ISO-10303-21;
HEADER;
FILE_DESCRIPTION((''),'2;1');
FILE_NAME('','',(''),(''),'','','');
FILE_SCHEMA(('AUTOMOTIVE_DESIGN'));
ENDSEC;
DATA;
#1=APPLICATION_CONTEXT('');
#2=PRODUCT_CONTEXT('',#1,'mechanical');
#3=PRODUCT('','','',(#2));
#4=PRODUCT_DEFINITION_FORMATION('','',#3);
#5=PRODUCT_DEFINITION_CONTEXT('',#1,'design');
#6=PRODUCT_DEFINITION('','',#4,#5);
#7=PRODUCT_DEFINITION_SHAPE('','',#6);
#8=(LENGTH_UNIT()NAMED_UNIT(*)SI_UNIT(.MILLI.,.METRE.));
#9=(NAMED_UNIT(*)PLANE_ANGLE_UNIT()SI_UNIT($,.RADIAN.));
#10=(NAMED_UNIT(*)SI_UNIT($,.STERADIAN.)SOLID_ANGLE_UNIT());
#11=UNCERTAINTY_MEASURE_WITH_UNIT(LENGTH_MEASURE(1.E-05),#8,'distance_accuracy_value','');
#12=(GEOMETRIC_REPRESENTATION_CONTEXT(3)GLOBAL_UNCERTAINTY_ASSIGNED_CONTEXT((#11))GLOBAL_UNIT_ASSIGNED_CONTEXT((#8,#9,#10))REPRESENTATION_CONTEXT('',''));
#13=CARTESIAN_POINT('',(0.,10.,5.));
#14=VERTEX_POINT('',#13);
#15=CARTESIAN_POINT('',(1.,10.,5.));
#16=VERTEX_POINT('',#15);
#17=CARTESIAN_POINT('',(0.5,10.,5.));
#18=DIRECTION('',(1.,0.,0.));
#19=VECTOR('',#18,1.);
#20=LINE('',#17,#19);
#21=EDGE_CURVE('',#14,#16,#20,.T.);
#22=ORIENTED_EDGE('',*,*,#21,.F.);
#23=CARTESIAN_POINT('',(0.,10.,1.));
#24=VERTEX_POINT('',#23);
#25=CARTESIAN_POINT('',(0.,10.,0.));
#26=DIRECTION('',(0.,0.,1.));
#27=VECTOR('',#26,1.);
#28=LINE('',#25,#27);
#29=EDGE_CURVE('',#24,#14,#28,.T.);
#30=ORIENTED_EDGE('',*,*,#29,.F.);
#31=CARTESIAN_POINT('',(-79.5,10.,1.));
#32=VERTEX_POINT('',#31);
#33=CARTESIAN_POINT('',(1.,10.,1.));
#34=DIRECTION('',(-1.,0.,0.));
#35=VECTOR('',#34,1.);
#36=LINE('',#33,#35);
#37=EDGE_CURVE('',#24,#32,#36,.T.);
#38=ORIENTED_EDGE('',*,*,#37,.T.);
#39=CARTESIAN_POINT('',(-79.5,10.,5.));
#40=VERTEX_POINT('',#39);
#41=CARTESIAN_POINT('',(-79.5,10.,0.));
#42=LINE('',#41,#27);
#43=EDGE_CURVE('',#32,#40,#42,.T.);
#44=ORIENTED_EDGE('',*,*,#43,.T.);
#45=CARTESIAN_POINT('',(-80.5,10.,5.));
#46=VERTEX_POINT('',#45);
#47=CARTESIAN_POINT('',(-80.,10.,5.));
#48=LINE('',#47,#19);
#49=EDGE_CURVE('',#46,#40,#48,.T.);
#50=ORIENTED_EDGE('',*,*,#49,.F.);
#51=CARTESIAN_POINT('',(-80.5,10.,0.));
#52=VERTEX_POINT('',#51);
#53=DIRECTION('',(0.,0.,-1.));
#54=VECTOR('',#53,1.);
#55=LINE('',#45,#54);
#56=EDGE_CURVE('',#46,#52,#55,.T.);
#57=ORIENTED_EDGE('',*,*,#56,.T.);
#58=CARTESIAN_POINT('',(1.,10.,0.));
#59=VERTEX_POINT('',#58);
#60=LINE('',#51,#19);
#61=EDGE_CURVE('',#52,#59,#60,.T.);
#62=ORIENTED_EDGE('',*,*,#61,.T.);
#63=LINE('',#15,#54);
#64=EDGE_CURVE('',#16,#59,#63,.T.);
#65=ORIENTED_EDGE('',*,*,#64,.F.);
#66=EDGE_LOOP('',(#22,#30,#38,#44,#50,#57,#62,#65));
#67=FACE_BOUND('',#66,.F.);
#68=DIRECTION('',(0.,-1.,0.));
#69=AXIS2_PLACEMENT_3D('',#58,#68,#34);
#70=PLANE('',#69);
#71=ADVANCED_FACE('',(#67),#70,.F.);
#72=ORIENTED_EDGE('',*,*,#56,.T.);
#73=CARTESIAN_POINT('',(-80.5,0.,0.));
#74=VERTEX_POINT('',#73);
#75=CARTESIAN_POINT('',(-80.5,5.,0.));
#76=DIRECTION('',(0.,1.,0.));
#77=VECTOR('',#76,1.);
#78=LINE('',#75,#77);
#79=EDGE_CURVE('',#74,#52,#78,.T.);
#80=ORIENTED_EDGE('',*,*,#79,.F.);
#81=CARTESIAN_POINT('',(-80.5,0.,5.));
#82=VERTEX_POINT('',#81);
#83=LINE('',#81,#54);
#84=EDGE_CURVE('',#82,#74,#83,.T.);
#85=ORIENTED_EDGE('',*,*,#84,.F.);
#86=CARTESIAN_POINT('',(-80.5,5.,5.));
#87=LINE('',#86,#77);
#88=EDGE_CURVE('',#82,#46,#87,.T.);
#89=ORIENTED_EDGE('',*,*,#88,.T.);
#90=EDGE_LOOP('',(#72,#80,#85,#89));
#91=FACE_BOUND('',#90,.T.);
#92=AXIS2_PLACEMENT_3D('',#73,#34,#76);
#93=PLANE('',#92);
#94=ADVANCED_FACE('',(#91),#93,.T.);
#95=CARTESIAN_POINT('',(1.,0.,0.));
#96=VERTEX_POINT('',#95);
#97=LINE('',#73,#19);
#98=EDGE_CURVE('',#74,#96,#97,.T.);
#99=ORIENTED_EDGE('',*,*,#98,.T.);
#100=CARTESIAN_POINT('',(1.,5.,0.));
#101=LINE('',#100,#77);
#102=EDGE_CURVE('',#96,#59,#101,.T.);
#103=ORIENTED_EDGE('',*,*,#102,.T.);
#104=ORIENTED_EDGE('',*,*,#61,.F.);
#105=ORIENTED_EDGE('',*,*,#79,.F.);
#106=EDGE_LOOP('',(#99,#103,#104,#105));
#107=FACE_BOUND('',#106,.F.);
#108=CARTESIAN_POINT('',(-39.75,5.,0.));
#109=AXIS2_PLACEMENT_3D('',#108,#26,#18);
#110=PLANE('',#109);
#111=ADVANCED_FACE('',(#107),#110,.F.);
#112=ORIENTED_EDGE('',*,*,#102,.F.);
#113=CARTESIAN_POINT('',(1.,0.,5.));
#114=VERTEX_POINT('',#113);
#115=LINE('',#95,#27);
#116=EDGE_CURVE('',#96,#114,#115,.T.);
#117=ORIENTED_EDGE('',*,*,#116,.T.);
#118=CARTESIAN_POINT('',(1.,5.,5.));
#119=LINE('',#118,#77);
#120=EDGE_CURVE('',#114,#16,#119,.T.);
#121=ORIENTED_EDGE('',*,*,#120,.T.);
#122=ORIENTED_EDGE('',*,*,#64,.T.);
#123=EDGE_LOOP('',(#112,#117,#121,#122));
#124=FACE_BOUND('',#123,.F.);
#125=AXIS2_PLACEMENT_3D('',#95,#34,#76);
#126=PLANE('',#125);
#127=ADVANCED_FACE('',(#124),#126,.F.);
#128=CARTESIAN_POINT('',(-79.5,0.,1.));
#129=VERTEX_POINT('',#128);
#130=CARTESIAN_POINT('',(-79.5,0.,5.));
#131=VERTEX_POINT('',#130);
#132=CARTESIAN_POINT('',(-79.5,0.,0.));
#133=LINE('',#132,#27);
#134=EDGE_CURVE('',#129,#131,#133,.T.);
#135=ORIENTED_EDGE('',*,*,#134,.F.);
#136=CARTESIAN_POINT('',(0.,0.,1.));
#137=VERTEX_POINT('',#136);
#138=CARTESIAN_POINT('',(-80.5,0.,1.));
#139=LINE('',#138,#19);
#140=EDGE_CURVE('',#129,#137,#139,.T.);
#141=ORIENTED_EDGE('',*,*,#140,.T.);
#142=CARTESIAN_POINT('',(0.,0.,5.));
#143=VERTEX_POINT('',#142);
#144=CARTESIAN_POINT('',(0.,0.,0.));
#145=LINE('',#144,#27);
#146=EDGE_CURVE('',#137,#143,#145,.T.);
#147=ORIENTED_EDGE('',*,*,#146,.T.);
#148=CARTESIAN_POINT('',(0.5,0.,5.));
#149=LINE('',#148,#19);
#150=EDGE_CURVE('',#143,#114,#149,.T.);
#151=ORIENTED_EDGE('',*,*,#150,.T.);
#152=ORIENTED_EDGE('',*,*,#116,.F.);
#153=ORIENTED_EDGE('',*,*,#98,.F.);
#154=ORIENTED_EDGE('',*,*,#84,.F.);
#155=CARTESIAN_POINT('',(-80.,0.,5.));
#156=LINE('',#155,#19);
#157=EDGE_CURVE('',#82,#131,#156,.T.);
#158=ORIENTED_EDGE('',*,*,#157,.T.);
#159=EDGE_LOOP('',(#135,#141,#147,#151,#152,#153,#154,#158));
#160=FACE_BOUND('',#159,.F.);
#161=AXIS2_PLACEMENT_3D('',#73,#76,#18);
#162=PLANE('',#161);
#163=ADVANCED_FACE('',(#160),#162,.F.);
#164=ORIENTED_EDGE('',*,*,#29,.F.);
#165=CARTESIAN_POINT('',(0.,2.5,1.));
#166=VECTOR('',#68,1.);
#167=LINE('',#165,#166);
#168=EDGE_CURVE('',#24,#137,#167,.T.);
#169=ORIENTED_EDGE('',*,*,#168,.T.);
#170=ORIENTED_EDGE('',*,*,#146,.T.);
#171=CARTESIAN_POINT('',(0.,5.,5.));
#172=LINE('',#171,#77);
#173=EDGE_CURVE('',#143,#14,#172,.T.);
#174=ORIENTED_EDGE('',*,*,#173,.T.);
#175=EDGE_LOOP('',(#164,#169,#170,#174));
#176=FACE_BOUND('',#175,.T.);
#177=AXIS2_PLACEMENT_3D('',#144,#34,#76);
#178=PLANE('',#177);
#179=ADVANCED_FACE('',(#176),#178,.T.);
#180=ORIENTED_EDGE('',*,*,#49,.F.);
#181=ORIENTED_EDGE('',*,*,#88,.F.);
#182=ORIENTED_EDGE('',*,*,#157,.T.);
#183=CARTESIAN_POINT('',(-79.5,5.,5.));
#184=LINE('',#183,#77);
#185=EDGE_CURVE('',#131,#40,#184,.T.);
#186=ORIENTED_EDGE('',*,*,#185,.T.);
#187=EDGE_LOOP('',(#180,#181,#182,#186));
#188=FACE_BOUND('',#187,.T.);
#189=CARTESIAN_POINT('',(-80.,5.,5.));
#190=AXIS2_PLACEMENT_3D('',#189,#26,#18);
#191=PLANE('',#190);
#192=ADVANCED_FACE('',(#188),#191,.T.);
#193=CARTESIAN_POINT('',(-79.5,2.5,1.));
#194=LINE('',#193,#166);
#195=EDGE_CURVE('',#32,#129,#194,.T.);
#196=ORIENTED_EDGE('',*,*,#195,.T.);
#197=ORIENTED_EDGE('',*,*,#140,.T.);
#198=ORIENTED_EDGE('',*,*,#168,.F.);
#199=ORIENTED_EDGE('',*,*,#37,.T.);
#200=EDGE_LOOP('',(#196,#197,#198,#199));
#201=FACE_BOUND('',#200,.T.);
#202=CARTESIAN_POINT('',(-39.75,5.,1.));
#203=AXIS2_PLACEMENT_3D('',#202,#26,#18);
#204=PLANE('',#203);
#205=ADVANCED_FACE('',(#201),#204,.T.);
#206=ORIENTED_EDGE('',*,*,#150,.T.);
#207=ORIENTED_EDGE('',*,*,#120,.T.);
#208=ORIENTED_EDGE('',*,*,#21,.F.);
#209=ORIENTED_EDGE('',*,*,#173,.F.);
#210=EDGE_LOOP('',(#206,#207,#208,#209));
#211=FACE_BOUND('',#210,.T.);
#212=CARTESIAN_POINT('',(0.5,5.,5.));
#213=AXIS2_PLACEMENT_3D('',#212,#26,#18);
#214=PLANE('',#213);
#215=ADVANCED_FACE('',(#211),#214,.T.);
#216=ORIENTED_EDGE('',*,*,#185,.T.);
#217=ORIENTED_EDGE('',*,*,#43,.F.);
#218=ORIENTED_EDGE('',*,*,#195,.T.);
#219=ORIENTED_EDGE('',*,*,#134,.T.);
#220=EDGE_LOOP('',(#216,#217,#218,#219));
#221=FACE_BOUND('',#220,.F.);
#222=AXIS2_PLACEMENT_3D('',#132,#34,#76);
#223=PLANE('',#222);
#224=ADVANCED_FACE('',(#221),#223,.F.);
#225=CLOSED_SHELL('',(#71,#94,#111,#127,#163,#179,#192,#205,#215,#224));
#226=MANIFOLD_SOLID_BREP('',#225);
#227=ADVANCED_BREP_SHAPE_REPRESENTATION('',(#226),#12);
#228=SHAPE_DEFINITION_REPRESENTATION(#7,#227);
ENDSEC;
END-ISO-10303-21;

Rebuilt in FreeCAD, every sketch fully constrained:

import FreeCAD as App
import Part
import Sketcher
from FreeCAD import Vector

doc = App.newDocument("Part")
body = doc.addObject("PartDesign::Body", "Body")

sketch1 = doc.addObject("Sketcher::SketchObject", "Sketch")
body.addObject(sketch1)
sketch1.AttachmentSupport = (doc.XY_Plane, [""])
sketch1.MapMode = "FlatFace"
sketch1.addGeometry([
    Part.LineSegment(Vector(1, 0, 0), Vector(1, 10, 0)),
    Part.LineSegment(Vector(1, 10, 0), Vector(-80, 10, 0)),
    Part.LineSegment(Vector(-80, 10, 0), Vector(-80, 0, 0)),
    Part.LineSegment(Vector(-80, 0, 0), Vector(1, 0, 0)),
], False)
sketch1.addConstraint([
    Sketcher.Constraint("Coincident", 0, 2, 1, 1),
    Sketcher.Constraint("Coincident", 1, 2, 2, 1),
    Sketcher.Constraint("Coincident", 2, 2, 3, 1),
    Sketcher.Constraint("Coincident", 3, 2, 0, 1),
    Sketcher.Constraint("Vertical", 0),
    Sketcher.Constraint("Horizontal", 1),
    Sketcher.Constraint("Vertical", 2),
    Sketcher.Constraint("Horizontal", 3),
    Sketcher.Constraint("PointOnObject", 2, 2, -1),
    Sketcher.Constraint("DistanceY", 0, 1, 0, 2, 10.0),
    Sketcher.Constraint("DistanceX", 1, 2, 1, 1, 81.5),
    Sketcher.Constraint("DistanceX", -1, 1, 0, 2, 1.0),
])
pad1 = doc.addObject("PartDesign::Pad", "Pad")
body.addObject(pad1)
pad1.Profile = sketch1
pad1.Length = 1

sketch2 = doc.addObject("Sketcher::SketchObject", "Sketch001")
body.addObject(sketch2)
sketch2.AttachmentSupport = (doc.XY_Plane, [""])
sketch2.MapMode = "FlatFace"
sketch2.addGeometry([
    Part.LineSegment(Vector(-80.5, 10, 0), Vector(-80.5, 0, 0)),
    Part.LineSegment(Vector(-80.5, 0, 0), Vector(-79.5, 0, 0)),
    Part.LineSegment(Vector(-79.5, 0, 0), Vector(-79.5, 10, 0)),
    Part.LineSegment(Vector(-79.5, 10, 0), Vector(-80.5, 10, 0)),
    Part.LineSegment(Vector(0, 10, 0), Vector(0, 0, 0)),
    Part.LineSegment(Vector(0, 0, 0), Vector(1, 0, 0)),
    Part.LineSegment(Vector(1, 0, 0), Vector(1, 10, 0)),
    Part.LineSegment(Vector(1, 10, 0), Vector(0, 10, 0)),
], False)
sketch2.addConstraint([
    Sketcher.Constraint("Coincident", 0, 2, 1, 1),
    Sketcher.Constraint("Coincident", 1, 2, 2, 1),
    Sketcher.Constraint("Coincident", 2, 2, 3, 1),
    Sketcher.Constraint("Coincident", 3, 2, 0, 1),
    Sketcher.Constraint("Coincident", 4, 2, 5, 1),
    Sketcher.Constraint("Coincident", 5, 2, 6, 1),
    Sketcher.Constraint("Coincident", 6, 2, 7, 1),
    Sketcher.Constraint("Coincident", 7, 2, 4, 1),
    Sketcher.Constraint("Vertical", 0),
    Sketcher.Constraint("Horizontal", 1),
    Sketcher.Constraint("Vertical", 2),
    Sketcher.Constraint("Horizontal", 3),
    Sketcher.Constraint("Vertical", 4),
    Sketcher.Constraint("Horizontal", 5),
    Sketcher.Constraint("Vertical", 6),
    Sketcher.Constraint("Horizontal", 7),
    Sketcher.Constraint("Coincident", 4, 2, -1, 1),
    Sketcher.Constraint("PointOnObject", 0, 2, -1),
    Sketcher.Constraint("Horizontal", 3, 2, 6, 2),
    Sketcher.Constraint("Equal", 3, 5),
    Sketcher.Constraint("DistanceX", 1, 1, 1, 2, 1.0),
    Sketcher.Constraint("DistanceY", 0, 2, 0, 1, 10.0),
    Sketcher.Constraint("DistanceX", 0, 2, -1, 1, 80.5),
])
pad2 = doc.addObject("PartDesign::Pad", "Pad001")
body.addObject(pad2)
pad2.Profile = sketch2
pad2.Length = 5

doc.recompute()
